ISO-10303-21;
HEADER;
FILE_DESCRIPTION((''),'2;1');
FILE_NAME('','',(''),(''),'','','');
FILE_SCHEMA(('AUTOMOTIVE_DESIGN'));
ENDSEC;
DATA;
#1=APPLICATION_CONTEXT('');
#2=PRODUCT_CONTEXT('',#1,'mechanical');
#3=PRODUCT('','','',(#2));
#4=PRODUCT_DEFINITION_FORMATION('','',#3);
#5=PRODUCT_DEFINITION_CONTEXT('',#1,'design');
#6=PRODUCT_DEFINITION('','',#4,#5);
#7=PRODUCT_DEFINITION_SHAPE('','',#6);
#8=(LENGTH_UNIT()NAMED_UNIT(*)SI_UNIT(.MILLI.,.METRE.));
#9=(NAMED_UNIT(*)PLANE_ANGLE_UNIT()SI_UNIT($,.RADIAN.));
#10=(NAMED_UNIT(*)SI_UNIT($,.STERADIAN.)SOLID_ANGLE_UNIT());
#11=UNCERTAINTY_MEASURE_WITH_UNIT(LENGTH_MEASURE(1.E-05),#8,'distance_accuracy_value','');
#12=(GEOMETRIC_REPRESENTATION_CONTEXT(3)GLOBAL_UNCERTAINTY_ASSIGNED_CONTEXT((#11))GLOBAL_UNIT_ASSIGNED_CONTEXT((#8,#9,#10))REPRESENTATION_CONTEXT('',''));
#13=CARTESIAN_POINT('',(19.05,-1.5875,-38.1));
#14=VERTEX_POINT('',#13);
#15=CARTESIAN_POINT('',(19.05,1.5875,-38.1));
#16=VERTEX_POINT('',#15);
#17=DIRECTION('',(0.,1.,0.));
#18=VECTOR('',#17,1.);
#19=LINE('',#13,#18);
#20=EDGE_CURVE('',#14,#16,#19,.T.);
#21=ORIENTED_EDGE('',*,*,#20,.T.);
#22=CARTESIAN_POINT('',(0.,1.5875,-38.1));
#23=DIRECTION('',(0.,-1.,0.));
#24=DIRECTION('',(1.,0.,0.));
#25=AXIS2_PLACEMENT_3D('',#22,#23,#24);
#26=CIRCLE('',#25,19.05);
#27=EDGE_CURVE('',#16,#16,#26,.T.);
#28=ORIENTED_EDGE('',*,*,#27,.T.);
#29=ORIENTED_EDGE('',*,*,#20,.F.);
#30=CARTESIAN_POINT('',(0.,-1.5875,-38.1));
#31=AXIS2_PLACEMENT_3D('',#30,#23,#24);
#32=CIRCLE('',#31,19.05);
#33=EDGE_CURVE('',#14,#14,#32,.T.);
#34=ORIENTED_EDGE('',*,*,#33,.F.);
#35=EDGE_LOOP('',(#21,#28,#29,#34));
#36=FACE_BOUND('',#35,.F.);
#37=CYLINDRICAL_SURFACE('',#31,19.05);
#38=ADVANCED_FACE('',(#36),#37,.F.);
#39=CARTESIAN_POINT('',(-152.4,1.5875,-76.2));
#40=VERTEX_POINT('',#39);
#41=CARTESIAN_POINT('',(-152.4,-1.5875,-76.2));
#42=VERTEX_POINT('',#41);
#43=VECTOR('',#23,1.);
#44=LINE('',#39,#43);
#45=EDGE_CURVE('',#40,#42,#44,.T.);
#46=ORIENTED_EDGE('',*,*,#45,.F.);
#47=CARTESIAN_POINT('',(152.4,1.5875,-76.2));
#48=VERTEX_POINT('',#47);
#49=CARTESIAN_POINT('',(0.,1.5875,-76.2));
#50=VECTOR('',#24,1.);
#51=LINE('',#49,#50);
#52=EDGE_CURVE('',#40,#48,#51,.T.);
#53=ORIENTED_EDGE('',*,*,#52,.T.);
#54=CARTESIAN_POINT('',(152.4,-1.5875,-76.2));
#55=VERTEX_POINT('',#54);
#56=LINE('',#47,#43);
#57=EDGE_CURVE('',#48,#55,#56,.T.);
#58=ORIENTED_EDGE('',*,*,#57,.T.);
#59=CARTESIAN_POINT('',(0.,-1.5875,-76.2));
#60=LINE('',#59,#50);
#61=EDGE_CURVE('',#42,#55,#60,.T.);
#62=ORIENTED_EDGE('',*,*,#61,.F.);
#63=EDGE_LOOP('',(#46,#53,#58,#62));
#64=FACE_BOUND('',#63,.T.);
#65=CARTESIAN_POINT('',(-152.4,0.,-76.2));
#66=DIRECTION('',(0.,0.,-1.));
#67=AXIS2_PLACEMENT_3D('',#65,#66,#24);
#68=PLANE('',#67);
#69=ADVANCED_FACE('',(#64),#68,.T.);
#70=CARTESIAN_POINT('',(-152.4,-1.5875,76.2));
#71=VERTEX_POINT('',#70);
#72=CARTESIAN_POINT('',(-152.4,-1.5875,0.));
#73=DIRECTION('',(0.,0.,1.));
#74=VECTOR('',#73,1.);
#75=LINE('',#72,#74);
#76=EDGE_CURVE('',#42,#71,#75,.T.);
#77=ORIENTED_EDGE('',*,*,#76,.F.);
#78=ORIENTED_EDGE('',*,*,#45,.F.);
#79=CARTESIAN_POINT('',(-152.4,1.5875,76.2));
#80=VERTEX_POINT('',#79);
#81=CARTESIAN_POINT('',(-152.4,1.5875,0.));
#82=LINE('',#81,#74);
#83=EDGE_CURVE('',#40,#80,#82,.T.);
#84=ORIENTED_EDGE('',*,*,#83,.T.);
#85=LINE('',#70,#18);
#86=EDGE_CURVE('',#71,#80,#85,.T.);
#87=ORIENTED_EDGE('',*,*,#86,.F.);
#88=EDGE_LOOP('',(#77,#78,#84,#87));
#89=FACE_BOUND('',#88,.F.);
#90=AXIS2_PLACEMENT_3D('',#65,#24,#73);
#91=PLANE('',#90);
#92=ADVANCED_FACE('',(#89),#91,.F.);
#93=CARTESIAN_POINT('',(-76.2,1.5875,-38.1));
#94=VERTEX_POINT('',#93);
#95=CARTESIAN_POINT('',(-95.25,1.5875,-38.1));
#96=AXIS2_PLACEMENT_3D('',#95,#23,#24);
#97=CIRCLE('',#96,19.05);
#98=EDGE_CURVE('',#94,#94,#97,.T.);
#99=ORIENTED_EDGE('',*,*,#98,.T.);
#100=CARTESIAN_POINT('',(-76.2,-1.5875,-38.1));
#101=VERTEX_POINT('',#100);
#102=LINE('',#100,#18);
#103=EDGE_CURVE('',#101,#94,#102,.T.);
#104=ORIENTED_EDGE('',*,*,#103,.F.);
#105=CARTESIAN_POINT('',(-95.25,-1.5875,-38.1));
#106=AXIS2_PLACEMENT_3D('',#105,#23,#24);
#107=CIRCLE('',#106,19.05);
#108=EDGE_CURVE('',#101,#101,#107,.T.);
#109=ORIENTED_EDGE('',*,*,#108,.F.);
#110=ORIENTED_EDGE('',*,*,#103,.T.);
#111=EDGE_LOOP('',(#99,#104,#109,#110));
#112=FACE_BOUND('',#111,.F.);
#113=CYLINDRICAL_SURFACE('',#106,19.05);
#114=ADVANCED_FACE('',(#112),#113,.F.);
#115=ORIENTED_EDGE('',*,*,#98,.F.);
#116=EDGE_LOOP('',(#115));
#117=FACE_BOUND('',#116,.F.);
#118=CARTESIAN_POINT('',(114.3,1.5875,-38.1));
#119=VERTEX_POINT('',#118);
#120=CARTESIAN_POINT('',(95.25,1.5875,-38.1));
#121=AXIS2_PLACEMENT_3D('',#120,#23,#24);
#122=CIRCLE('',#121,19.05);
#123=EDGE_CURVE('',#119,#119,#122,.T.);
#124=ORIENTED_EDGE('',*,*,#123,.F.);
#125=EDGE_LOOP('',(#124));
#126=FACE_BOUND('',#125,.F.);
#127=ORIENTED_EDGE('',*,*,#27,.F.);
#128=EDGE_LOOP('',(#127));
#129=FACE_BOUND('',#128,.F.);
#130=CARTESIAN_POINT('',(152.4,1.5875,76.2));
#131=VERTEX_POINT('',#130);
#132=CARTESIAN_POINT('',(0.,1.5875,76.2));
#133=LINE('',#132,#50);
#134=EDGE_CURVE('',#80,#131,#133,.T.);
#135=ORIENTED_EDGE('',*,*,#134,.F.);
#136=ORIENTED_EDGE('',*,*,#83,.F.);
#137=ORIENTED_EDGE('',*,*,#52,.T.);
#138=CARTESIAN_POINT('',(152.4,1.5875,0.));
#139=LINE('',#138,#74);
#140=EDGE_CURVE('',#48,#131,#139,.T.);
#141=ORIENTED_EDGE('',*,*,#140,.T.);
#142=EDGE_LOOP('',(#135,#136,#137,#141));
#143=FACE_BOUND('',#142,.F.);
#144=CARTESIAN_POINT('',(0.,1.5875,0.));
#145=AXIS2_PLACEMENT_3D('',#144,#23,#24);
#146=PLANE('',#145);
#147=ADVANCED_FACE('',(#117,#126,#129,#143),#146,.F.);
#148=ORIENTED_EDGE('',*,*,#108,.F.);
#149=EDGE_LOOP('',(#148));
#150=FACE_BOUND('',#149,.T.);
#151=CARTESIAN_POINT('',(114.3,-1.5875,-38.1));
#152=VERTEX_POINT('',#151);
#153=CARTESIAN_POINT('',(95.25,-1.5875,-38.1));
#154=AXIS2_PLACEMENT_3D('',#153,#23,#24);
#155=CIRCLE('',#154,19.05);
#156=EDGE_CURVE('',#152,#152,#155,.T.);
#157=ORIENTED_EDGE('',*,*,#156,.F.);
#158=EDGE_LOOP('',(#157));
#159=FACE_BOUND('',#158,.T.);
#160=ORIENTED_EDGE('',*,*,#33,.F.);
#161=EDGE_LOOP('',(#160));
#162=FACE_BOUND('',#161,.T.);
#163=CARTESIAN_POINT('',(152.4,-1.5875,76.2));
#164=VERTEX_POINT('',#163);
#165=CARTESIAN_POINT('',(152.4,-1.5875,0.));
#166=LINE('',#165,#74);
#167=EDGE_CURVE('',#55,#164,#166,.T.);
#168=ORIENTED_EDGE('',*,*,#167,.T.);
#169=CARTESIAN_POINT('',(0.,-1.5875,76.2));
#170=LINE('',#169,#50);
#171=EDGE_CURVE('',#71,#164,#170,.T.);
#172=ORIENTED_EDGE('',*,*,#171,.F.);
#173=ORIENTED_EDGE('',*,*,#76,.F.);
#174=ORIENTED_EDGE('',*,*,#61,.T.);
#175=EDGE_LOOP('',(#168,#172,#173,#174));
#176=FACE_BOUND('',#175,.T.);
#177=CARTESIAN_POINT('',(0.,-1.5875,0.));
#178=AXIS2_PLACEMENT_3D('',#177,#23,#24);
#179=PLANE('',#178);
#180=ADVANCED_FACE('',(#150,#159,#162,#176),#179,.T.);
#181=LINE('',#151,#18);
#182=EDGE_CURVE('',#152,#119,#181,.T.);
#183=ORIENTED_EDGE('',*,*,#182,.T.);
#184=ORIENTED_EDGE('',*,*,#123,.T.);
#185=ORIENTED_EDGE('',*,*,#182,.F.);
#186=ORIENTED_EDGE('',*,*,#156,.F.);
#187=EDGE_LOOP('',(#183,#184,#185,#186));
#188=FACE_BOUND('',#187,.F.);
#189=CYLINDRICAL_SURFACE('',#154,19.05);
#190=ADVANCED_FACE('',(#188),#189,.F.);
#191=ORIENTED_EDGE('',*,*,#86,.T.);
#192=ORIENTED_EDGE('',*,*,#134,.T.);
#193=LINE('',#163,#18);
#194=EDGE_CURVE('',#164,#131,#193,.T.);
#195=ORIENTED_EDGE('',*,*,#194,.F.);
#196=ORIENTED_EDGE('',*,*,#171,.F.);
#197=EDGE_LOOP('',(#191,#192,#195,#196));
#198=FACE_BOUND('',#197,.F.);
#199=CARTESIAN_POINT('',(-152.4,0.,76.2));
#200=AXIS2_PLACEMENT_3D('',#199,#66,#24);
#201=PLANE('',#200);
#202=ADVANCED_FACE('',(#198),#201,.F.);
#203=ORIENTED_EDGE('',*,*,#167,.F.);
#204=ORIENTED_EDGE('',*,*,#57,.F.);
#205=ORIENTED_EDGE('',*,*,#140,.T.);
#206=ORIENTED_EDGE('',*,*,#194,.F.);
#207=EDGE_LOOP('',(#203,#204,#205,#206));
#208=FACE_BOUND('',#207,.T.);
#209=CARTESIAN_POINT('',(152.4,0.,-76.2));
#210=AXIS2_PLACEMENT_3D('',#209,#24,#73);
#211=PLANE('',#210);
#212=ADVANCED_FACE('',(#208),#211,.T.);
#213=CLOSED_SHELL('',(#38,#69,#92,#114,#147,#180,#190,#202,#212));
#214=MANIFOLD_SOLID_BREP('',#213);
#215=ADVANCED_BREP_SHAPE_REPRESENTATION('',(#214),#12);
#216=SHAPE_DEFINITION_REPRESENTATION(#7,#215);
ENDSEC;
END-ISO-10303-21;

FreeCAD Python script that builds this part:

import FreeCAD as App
import Part
import Sketcher
from FreeCAD import Vector
Q = App.Units.Quantity


def add_polygon(sketch, points):
    """Adds a closed chain of lines whose ends are joined by coincident constraints."""
    first, n = sketch.GeometryCount, len(points)
    for a, b in zip(points, points[1:] + points[:1]):
        sketch.addGeometry(Part.LineSegment(App.Vector(*a, 0), App.Vector(*b, 0)), False)
    for i in range(n):
        sketch.addConstraint(Sketcher.Constraint("Coincident", first + i, 2, first + (i + 1) % n, 1))

doc = App.newDocument("Part")
body = doc.addObject("PartDesign::Body", "Body")

# Sketch on XZ plane
sketch1 = body.newObject("Sketcher::SketchObject", "Sketch")
sketch1.AttachmentSupport = (doc.getObject("XZ_Plane"), [""])
sketch1.MapMode = "FlatFace"
add_polygon(sketch1, [(-152, 76), (-152, -76), (152, -76), (152, 76)])  # lines 0-3
sketch1.addConstraint(Sketcher.Constraint("Vertical", 0))
sketch1.addConstraint(Sketcher.Constraint("Horizontal", 1))
sketch1.addConstraint(Sketcher.Constraint("Vertical", 2))
sketch1.addConstraint(Sketcher.Constraint("Horizontal", 3))
sketch1.addConstraint(Sketcher.Constraint("Symmetric", 0, 2, 2, 2, -1, 1))
sketch1.addConstraint(Sketcher.Constraint("DistanceX", 1, 1, 1, 2, Q("12 in")))
sketch1.addConstraint(Sketcher.Constraint("DistanceY", 0, 2, 0, 1, Q("6 in")))
pad1 = body.newObject("PartDesign::Pad", "Pad")
pad1.Profile = sketch1
pad1.Length = Q("0.125 in")
pad1.Midplane = True

# Sketch on XZ plane
sketch2 = body.newObject("Sketcher::SketchObject", "Sketch001")
sketch2.AttachmentSupport = (doc.getObject("XZ_Plane"), [""])
sketch2.MapMode = "FlatFace"
sketch2.AttachmentOffset = App.Placement(Vector(0, 0, 0.0625 * 25.4), App.Rotation())
sketch2.addGeometry(Part.Circle(Vector(-95, -38, 0), Vector(0, 0, 1), 19), False)
sketch2.addGeometry(Part.Circle(Vector(0, -38, 0), Vector(0, 0, 1), 19), False)
sketch2.addGeometry(Part.Circle(Vector(95, -38, 0), Vector(0, 0, 1), 19), False)
sketch2.addConstraint(Sketcher.Constraint("Equal", 0, 1))
sketch2.addConstraint(Sketcher.Constraint("Equal", 1, 2))
sketch2.addConstraint(Sketcher.Constraint("Symmetric", 0, 3, 2, 3, -2))
sketch2.addConstraint(Sketcher.Constraint("PointOnObject", 1, 3, -2))
sketch2.addConstraint(Sketcher.Constraint("Horizontal", 0, 3, 1, 3))
sketch2.addConstraint(Sketcher.Constraint("Diameter", 0, Q("1.5 in")))
sketch2.addConstraint(Sketcher.Constraint("DistanceY", 0, 3, -1, 1, Q("1.5 in")))
sketch2.addConstraint(Sketcher.Constraint("DistanceX", 0, 3, 2, 3, Q("7.5 in")))
pocket1 = body.newObject("PartDesign::Pocket", "Pocket")
pocket1.Profile = sketch2
pocket1.Type = "ThroughAll"

doc.recompute()
